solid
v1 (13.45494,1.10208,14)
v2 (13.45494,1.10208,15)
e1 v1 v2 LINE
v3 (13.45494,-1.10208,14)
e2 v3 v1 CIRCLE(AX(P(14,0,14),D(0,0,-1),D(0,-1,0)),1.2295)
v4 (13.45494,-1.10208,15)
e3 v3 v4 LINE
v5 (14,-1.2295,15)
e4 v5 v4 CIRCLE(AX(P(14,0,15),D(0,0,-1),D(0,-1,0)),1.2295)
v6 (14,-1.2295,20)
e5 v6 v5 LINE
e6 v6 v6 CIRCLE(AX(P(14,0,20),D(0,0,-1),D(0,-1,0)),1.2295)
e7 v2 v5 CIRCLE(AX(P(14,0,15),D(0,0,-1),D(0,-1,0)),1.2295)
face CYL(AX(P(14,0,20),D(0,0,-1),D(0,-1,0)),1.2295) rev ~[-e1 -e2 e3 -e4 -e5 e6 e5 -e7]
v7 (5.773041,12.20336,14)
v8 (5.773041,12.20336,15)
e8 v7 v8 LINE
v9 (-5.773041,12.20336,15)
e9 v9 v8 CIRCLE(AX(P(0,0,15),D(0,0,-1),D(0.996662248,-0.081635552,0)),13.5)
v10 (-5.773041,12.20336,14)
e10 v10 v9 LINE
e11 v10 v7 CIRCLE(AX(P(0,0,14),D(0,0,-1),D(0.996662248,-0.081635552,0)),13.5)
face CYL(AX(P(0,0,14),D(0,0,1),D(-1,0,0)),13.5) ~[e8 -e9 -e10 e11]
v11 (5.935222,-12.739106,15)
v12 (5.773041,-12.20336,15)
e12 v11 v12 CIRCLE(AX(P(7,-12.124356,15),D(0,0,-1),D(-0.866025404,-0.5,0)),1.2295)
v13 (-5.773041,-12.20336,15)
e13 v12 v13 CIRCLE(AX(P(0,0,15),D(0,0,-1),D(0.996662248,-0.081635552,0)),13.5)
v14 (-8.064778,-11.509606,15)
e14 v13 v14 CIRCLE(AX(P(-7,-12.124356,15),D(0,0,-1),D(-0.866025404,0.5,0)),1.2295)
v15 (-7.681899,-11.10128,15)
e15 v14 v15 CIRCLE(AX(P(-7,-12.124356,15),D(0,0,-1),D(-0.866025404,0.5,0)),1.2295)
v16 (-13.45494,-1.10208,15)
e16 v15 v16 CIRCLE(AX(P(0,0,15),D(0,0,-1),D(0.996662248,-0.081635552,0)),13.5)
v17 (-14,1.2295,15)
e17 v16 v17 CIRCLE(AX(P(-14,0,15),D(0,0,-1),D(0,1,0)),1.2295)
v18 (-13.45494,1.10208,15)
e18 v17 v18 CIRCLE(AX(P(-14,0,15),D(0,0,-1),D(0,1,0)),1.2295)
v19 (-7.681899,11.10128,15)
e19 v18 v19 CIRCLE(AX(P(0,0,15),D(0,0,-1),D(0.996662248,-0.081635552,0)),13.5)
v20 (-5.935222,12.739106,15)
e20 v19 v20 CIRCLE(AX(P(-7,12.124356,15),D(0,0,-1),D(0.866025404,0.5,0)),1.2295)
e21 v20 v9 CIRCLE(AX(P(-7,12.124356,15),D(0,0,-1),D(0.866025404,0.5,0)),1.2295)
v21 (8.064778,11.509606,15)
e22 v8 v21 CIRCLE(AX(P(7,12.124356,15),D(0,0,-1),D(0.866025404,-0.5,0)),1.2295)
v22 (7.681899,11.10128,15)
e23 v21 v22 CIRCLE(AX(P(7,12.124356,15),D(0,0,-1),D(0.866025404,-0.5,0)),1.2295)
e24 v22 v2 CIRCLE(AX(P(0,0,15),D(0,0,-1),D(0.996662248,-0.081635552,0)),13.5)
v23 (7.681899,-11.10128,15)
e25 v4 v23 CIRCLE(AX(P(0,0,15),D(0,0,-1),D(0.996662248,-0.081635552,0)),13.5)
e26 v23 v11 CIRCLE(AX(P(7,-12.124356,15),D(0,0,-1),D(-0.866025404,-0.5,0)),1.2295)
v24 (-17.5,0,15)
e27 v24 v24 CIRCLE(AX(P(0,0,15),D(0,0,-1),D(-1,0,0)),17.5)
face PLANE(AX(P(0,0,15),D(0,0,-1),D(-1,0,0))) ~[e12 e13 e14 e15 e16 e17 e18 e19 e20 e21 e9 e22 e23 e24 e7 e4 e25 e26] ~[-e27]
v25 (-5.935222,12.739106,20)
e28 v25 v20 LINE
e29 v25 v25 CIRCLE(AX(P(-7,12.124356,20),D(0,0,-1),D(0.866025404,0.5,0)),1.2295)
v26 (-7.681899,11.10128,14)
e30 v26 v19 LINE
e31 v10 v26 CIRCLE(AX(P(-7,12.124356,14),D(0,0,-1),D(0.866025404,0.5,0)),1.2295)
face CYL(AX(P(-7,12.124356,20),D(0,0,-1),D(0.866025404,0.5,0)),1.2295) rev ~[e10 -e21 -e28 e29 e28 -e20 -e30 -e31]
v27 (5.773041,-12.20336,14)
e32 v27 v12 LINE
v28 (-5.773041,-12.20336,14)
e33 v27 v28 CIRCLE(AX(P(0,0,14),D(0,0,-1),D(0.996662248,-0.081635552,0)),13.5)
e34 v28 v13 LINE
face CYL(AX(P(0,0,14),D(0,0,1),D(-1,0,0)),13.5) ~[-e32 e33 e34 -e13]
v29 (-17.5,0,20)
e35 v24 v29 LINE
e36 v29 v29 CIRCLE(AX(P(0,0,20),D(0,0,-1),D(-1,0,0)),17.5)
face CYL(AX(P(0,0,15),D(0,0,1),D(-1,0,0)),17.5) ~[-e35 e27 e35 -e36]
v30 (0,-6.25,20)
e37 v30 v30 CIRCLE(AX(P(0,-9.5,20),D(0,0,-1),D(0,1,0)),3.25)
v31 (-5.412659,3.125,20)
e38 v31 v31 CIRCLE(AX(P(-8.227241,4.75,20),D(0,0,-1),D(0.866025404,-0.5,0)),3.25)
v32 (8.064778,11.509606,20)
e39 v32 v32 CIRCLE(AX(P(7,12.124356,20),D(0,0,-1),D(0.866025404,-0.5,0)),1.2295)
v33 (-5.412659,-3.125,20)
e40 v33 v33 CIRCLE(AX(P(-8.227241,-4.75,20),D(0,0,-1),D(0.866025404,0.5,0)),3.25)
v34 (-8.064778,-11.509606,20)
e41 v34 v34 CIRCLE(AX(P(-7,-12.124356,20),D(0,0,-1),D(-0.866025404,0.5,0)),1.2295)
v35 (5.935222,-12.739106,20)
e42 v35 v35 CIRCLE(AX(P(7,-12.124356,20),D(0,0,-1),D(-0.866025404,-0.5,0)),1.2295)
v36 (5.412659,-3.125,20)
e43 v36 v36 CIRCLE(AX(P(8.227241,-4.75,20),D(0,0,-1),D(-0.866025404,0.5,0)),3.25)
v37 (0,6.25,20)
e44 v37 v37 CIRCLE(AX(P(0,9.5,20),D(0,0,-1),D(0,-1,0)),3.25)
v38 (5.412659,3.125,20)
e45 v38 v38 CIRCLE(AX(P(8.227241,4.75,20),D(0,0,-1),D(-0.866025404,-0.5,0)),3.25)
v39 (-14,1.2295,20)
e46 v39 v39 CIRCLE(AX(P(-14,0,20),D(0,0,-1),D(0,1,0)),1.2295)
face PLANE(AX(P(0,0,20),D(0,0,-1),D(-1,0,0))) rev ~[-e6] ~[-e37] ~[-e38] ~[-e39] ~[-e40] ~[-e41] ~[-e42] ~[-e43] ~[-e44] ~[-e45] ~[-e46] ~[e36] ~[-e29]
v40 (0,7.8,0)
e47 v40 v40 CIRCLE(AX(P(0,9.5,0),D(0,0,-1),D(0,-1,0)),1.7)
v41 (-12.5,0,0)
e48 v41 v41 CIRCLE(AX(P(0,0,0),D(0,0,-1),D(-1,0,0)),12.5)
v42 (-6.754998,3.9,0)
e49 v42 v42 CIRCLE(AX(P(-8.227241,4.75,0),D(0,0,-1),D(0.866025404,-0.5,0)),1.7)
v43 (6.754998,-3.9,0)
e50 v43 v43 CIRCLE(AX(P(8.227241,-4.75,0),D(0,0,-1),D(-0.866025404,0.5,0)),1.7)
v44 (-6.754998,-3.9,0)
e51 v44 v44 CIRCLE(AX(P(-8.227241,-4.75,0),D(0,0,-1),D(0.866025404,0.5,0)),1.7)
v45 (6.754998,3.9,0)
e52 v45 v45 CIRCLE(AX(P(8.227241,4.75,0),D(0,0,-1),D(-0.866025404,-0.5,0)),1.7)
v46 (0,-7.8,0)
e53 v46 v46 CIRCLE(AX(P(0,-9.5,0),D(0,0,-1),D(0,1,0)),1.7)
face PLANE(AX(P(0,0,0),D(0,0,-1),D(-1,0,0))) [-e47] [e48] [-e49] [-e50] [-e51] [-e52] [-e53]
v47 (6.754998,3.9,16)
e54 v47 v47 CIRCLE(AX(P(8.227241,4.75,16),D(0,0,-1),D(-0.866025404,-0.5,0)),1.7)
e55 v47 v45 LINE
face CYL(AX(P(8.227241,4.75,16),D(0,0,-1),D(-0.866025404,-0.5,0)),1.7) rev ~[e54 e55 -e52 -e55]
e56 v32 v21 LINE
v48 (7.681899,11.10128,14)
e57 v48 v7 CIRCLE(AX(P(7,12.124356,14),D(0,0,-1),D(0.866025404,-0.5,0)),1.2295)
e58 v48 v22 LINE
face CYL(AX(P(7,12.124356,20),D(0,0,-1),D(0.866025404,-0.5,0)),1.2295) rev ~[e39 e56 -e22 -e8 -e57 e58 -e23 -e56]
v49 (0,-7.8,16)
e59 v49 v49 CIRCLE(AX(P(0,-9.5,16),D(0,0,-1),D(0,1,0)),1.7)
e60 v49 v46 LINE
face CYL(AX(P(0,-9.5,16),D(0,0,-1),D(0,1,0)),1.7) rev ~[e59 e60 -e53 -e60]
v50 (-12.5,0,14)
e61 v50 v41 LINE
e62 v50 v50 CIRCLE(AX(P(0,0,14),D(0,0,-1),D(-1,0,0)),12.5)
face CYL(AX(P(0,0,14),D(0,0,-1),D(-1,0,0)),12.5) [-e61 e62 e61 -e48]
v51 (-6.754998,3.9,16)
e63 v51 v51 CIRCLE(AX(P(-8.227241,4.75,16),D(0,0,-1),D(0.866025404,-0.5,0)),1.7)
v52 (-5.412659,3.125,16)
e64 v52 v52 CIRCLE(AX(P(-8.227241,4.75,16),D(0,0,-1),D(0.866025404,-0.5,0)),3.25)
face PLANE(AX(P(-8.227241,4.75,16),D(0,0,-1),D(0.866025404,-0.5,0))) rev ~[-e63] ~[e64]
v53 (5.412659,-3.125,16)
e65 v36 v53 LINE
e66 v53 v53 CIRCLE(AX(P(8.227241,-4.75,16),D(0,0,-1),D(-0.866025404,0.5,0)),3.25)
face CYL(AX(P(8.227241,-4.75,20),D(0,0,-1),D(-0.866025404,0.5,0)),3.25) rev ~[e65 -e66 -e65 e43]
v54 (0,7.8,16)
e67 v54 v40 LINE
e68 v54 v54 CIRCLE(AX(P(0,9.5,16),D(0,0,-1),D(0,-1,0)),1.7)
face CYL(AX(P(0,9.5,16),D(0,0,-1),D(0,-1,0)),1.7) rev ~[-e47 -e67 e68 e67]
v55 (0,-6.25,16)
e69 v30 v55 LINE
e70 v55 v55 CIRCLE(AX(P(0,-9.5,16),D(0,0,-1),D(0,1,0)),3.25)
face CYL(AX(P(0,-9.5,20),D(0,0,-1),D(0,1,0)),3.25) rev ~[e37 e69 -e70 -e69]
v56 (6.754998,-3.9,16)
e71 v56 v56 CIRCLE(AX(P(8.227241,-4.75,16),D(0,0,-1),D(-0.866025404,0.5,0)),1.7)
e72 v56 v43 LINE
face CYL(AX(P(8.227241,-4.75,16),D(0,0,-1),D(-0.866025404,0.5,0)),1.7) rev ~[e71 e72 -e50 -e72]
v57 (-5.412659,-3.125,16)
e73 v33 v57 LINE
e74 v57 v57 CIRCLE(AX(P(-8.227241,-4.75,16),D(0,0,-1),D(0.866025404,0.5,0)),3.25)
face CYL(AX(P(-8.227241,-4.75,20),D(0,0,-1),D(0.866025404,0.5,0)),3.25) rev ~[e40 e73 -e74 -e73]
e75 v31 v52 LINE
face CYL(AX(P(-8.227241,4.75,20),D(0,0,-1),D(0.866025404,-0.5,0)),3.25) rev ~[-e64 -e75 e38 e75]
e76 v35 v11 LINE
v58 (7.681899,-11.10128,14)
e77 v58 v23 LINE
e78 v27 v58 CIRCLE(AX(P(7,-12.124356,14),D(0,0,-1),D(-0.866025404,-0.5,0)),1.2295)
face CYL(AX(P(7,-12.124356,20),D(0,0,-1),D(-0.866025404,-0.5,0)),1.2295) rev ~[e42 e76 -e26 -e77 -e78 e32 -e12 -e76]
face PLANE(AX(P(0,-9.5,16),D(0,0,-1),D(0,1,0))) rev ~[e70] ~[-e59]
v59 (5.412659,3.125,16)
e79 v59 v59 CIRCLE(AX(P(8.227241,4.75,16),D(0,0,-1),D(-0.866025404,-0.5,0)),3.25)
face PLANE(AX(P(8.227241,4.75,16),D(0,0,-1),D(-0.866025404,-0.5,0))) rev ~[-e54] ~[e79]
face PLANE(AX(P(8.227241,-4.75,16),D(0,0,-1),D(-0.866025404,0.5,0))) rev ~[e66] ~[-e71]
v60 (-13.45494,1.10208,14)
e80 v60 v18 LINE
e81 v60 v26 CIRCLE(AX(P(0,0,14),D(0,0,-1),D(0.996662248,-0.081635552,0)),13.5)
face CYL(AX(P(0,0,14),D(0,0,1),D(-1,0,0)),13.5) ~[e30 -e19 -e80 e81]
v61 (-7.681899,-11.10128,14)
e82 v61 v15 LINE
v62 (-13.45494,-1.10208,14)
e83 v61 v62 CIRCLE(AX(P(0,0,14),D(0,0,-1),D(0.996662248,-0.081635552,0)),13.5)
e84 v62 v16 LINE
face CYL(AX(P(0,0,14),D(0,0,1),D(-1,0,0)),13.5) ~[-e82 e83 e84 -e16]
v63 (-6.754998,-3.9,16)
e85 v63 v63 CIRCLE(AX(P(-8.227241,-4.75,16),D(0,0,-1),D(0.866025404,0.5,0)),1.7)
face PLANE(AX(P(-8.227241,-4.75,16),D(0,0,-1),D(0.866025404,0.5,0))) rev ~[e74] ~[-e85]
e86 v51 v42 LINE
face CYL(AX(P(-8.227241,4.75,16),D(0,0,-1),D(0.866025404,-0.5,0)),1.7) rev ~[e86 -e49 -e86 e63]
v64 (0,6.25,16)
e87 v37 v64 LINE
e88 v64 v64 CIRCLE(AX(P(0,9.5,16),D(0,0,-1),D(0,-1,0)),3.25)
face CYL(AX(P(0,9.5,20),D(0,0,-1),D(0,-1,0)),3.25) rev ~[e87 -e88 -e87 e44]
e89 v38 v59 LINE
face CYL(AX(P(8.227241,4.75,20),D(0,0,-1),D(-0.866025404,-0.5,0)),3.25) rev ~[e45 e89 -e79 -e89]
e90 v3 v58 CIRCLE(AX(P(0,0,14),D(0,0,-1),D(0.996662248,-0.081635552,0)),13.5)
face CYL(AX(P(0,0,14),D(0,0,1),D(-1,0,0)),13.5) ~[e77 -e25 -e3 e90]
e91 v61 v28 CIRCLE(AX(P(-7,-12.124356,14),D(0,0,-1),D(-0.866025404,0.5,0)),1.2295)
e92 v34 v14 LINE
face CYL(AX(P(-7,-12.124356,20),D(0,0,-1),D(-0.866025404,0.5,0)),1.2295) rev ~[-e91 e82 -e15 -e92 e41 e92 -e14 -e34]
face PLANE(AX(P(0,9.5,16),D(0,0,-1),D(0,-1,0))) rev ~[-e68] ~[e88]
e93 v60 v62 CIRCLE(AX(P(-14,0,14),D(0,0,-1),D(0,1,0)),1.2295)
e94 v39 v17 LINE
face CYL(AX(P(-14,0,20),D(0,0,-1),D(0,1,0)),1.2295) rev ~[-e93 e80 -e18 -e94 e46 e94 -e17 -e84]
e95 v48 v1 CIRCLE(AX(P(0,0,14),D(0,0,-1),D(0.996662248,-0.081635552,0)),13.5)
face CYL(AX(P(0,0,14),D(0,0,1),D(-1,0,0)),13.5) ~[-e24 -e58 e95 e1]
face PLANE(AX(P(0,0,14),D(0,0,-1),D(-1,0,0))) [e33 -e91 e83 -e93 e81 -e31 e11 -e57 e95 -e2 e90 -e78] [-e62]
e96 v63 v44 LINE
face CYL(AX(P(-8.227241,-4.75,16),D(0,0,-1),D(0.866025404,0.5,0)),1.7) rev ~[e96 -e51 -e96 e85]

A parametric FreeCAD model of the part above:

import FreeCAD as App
import Part
import Sketcher

V = App.Vector

doc = App.newDocument("Part")
params = doc.addObject("Spreadsheet::Sheet", "Params")
for row, (alias, value) in enumerate([
    ("sketch1_width", "1 mm"),
    ("sketch1_height", "5 mm"),
    ("sketch1_height2", "14 mm"),
    ("sketch1_width2", "17.5 mm"),
    ("revolution_angle", "360 deg"),
    ("sketch2_diameter", "3.4 mm"),
    ("hole_diameter", "3.4 mm"),
    ("hole_cbore_diameter", "6.5 mm"),
    ("hole_cbore_depth", "4 mm"),
    ("hole2_diameter", "2.459 mm"),
], start=1):
    params.set(f"A{row}", alias)
    params.set(f"B{row}", "=" + value)
    params.setAlias(f"B{row}", alias)

body = doc.addObject("PartDesign::Body", "Body")

# Sketch on XZ plane
sketch1 = body.newObject("Sketcher::SketchObject", "Sketch")
sketch1.AttachmentSupport = (doc.getObject("XZ_Plane"), [""])
sketch1.MapMode = "FlatFace"
sketch1.addGeometry(Part.LineSegment(V(-12.5, 14, 0), V(-13.5, 14, 0)), False)
sketch1.addGeometry(Part.LineSegment(V(-13.5, 14, 0), V(-13.5, 15, 0)), False)
sketch1.addGeometry(Part.LineSegment(V(-13.5, 15, 0), V(-17.5, 15, 0)), False)
sketch1.addGeometry(Part.LineSegment(V(-17.5, 15, 0), V(-17.5, 20, 0)), False)
sketch1.addGeometry(Part.LineSegment(V(-17.5, 20, 0), V(0, 20, 0)), False)
sketch1.addGeometry(Part.LineSegment(V(0, 20, 0), V(0, 0, 0)), False)
sketch1.addGeometry(Part.LineSegment(V(0, 0, 0), V(-12.5, 0, 0)), False)
sketch1.addGeometry(Part.LineSegment(V(-12.5, 0, 0), V(-12.5, 14, 0)), False)
sketch1.addConstraint(Sketcher.Constraint("Coincident", 0, 2, 1, 1))
sketch1.addConstraint(Sketcher.Constraint("Coincident", 1, 2, 2, 1))
sketch1.addConstraint(Sketcher.Constraint("Coincident", 2, 2, 3, 1))
sketch1.addConstraint(Sketcher.Constraint("Coincident", 3, 2, 4, 1))
sketch1.addConstraint(Sketcher.Constraint("Coincident", 4, 2, 5, 1))
sketch1.addConstraint(Sketcher.Constraint("Coincident", 5, 2, 6, 1))
sketch1.addConstraint(Sketcher.Constraint("Coincident", 6, 2, 7, 1))
sketch1.addConstraint(Sketcher.Constraint("Coincident", 7, 2, 0, 1))
sketch1.addConstraint(Sketcher.Constraint("Horizontal", 0))
sketch1.addConstraint(Sketcher.Constraint("Vertical", 1))
sketch1.addConstraint(Sketcher.Constraint("Horizontal", 2))
sketch1.addConstraint(Sketcher.Constraint("Vertical", 3))
sketch1.addConstraint(Sketcher.Constraint("Horizontal", 4))
sketch1.addConstraint(Sketcher.Constraint("Vertical", 5))
sketch1.addConstraint(Sketcher.Constraint("Horizontal", 6))
sketch1.addConstraint(Sketcher.Constraint("Vertical", 7))
sketch1.addConstraint(Sketcher.Constraint("Coincident", 5, 2, -1, 1))
sketch1.addConstraint(Sketcher.Constraint("Equal", 0, 1))
sketch1.addConstraint(Sketcher.Constraint("DistanceX", 0, 2, 0, 1, 1.0))
sketch1.addConstraint(Sketcher.Constraint("DistanceY", 3, 1, 3, 2, 5.0))
sketch1.addConstraint(Sketcher.Constraint("DistanceY", 7, 1, 7, 2, 14.0))
sketch1.addConstraint(Sketcher.Constraint("DistanceX", 2, 2, 6, 2, 5.0))
sketch1.addConstraint(Sketcher.Constraint("DistanceX", 4, 1, 4, 2, 17.5))
sketch1.setExpression("Constraints[18]", "Params.sketch1_width")
sketch1.setExpression("Constraints[19]", "Params.sketch1_height")
sketch1.setExpression("Constraints[20]", "Params.sketch1_height2")
sketch1.setExpression("Constraints[22]", "Params.sketch1_width2")
revolution = body.newObject("PartDesign::Revolution", "Revolution")
revolution.Profile = sketch1
revolution.ReferenceAxis = (sketch1, ["V_Axis"])
revolution.setExpression("Angle", "Params.revolution_angle")

# Sketch on XY plane
sketch2 = body.newObject("Sketcher::SketchObject", "Sketch001")
sketch2.AttachmentSupport = (doc.getObject("XY_Plane"), [""])
sketch2.MapMode = "FlatFace"
sketch2.AttachmentOffset = App.Placement(V(0, 0, 20), App.Rotation())
sketch2.addGeometry(Part.Circle(V(0, 9.5, 0), V(0, 0, 1), 1.7), False)
sketch2.addConstraint(Sketcher.Constraint("PointOnObject", 0, 3, -2))
sketch2.addConstraint(Sketcher.Constraint("Diameter", 0, 3.4))
sketch2.addConstraint(Sketcher.Constraint("DistanceY", -1, 1, 0, 3, 9.5))
sketch2.setExpression("Constraints[1]", "Params.sketch2_diameter")
doc.recompute()
hole = body.newObject("PartDesign::Hole", "Hole")
hole.Profile = sketch2
hole.ThreadType = "None"
hole.setExpression("Diameter", "Params.hole_diameter")
hole.DepthType = "ThroughAll"
hole.HoleCutType = "Counterbore"
hole.setExpression("HoleCutDiameter", "Params.hole_cbore_diameter")
hole.setExpression("HoleCutDepth", "Params.hole_cbore_depth")
doc.recompute()

polarpattern = body.newObject("PartDesign::PolarPattern", "PolarPattern")
polarpattern.Originals = [hole]
polarpattern.Axis = (doc.getObject("Z_Axis"), [""])
polarpattern.Angle = 360
polarpattern.Occurrences = 6
body.Tip = polarpattern

# Sketch on XY plane
sketch3 = body.newObject("Sketcher::SketchObject", "Sketch002")
sketch3.AttachmentSupport = (doc.getObject("XY_Plane"), [""])
sketch3.MapMode = "FlatFace"
sketch3.AttachmentOffset = App.Placement(V(0, 0, 20), App.Rotation())
sketch3.addGeometry(Part.Circle(V(14, 0, 0), V(0, 0, 1), 1.2295), False)
sketch3.addConstraint(Sketcher.Constraint("PointOnObject", 0, 3, -1))
sketch3.addConstraint(Sketcher.Constraint("Diameter", 0, 2.459))
sketch3.addConstraint(Sketcher.Constraint("DistanceX", -1, 1, 0, 3, 14.0))
doc.recompute()
hole2 = body.newObject("PartDesign::Hole", "Hole001")
hole2.Profile = sketch3
hole2.ThreadType = "None"
hole2.setExpression("Diameter", "Params.hole2_diameter")
hole2.DepthType = "ThroughAll"
doc.recompute()

polarpattern2 = body.newObject("PartDesign::PolarPattern", "PolarPattern001")
polarpattern2.Originals = [hole2]
polarpattern2.Axis = (doc.getObject("Z_Axis"), [""])
polarpattern2.Angle = 360
polarpattern2.Occurrences = 6
body.Tip = polarpattern2

doc.recompute()
